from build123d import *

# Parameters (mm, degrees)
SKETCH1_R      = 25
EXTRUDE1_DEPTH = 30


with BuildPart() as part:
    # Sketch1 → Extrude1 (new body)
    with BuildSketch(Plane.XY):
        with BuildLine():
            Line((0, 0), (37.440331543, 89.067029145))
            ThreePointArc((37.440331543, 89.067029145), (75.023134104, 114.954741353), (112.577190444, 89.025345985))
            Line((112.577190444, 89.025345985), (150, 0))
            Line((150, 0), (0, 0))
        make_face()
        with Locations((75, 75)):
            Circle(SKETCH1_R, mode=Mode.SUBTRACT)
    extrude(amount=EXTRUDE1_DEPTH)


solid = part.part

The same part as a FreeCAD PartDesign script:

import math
import FreeCAD as App
import Part
import Sketcher

V = App.Vector
Q = App.Units.Quantity

doc = App.newDocument("Part")
body = doc.addObject("PartDesign::Body", "Body")

# Sketch on XY plane
sketch1 = body.newObject("Sketcher::SketchObject", "Sketch")
sketch1.AttachmentSupport = (doc.getObject("XY_Plane"), [""])
sketch1.MapMode = "FlatFace"
sketch1.addGeometry(Part.LineSegment(V(37.440332, 89.067029, 0), V(0, 0, 0)), False)
sketch1.addGeometry(Part.LineSegment(V(0, 0, 0), V(150, 0, 0)), False)
sketch1.addGeometry(Part.LineSegment(V(150, 0, 0), V(112.57719, 89.025346, 0)), False)
sketch1.addGeometry(Part.ArcOfCircle(Part.Circle(V(75.000837, 74.762609, 0), V(0, 0, 1), 40.192139), math.radians(20.7851), math.radians(159.151329)), False)
sketch1.addGeometry(Part.Circle(V(75, 75, 0), V(0, 0, 1), 25), False)
sketch1.addConstraint(Sketcher.Constraint("Coincident", 0, 2, 1, 1))
sketch1.addConstraint(Sketcher.Constraint("Coincident", 1, 2, 2, 1))
sketch1.addConstraint(Sketcher.Constraint("Coincident", 2, 2, 3, 1))
sketch1.addConstraint(Sketcher.Constraint("Coincident", 3, 2, 0, 1))
sketch1.addConstraint(Sketcher.Constraint("Horizontal", 1))
sketch1.addConstraint(Sketcher.Constraint("Coincident", 0, 2, -1, 1))
sketch1.addConstraint(Sketcher.Constraint("Diameter", 4, Q("50 mm")))
sketch1.addConstraint(Sketcher.Constraint("DistanceX", 1, 1, 1, 2, Q("150 mm")))
sketch1.addConstraint(Sketcher.Constraint("DistanceX", -1, 1, 4, 3, Q("75 mm")))
sketch1.addConstraint(Sketcher.Constraint("DistanceY", -1, 1, 4, 3, Q("75 mm")))
sketch1.addConstraint(Sketcher.Constraint("Radius", 3, Q("40.192139 mm")))
sketch1.addConstraint(Sketcher.Constraint("Distance", 2, Q("96.571108 mm")))
sketch1.addConstraint(Sketcher.Constraint("DistanceY", -1, 1, 3, 3, Q("74.762609 mm")))
sketch1.addConstraint(Sketcher.Constraint("DistanceX", -1, 1, 2, 2, Q("112.57719 mm")))
sketch1.addConstraint(Sketcher.Constraint("DistanceX", -1, 1, 3, 2, Q("37.440332 mm")))
pad1 = body.newObject("PartDesign::Pad", "Pad")
pad1.Profile = sketch1
pad1.Length = 30

doc.recompute()
